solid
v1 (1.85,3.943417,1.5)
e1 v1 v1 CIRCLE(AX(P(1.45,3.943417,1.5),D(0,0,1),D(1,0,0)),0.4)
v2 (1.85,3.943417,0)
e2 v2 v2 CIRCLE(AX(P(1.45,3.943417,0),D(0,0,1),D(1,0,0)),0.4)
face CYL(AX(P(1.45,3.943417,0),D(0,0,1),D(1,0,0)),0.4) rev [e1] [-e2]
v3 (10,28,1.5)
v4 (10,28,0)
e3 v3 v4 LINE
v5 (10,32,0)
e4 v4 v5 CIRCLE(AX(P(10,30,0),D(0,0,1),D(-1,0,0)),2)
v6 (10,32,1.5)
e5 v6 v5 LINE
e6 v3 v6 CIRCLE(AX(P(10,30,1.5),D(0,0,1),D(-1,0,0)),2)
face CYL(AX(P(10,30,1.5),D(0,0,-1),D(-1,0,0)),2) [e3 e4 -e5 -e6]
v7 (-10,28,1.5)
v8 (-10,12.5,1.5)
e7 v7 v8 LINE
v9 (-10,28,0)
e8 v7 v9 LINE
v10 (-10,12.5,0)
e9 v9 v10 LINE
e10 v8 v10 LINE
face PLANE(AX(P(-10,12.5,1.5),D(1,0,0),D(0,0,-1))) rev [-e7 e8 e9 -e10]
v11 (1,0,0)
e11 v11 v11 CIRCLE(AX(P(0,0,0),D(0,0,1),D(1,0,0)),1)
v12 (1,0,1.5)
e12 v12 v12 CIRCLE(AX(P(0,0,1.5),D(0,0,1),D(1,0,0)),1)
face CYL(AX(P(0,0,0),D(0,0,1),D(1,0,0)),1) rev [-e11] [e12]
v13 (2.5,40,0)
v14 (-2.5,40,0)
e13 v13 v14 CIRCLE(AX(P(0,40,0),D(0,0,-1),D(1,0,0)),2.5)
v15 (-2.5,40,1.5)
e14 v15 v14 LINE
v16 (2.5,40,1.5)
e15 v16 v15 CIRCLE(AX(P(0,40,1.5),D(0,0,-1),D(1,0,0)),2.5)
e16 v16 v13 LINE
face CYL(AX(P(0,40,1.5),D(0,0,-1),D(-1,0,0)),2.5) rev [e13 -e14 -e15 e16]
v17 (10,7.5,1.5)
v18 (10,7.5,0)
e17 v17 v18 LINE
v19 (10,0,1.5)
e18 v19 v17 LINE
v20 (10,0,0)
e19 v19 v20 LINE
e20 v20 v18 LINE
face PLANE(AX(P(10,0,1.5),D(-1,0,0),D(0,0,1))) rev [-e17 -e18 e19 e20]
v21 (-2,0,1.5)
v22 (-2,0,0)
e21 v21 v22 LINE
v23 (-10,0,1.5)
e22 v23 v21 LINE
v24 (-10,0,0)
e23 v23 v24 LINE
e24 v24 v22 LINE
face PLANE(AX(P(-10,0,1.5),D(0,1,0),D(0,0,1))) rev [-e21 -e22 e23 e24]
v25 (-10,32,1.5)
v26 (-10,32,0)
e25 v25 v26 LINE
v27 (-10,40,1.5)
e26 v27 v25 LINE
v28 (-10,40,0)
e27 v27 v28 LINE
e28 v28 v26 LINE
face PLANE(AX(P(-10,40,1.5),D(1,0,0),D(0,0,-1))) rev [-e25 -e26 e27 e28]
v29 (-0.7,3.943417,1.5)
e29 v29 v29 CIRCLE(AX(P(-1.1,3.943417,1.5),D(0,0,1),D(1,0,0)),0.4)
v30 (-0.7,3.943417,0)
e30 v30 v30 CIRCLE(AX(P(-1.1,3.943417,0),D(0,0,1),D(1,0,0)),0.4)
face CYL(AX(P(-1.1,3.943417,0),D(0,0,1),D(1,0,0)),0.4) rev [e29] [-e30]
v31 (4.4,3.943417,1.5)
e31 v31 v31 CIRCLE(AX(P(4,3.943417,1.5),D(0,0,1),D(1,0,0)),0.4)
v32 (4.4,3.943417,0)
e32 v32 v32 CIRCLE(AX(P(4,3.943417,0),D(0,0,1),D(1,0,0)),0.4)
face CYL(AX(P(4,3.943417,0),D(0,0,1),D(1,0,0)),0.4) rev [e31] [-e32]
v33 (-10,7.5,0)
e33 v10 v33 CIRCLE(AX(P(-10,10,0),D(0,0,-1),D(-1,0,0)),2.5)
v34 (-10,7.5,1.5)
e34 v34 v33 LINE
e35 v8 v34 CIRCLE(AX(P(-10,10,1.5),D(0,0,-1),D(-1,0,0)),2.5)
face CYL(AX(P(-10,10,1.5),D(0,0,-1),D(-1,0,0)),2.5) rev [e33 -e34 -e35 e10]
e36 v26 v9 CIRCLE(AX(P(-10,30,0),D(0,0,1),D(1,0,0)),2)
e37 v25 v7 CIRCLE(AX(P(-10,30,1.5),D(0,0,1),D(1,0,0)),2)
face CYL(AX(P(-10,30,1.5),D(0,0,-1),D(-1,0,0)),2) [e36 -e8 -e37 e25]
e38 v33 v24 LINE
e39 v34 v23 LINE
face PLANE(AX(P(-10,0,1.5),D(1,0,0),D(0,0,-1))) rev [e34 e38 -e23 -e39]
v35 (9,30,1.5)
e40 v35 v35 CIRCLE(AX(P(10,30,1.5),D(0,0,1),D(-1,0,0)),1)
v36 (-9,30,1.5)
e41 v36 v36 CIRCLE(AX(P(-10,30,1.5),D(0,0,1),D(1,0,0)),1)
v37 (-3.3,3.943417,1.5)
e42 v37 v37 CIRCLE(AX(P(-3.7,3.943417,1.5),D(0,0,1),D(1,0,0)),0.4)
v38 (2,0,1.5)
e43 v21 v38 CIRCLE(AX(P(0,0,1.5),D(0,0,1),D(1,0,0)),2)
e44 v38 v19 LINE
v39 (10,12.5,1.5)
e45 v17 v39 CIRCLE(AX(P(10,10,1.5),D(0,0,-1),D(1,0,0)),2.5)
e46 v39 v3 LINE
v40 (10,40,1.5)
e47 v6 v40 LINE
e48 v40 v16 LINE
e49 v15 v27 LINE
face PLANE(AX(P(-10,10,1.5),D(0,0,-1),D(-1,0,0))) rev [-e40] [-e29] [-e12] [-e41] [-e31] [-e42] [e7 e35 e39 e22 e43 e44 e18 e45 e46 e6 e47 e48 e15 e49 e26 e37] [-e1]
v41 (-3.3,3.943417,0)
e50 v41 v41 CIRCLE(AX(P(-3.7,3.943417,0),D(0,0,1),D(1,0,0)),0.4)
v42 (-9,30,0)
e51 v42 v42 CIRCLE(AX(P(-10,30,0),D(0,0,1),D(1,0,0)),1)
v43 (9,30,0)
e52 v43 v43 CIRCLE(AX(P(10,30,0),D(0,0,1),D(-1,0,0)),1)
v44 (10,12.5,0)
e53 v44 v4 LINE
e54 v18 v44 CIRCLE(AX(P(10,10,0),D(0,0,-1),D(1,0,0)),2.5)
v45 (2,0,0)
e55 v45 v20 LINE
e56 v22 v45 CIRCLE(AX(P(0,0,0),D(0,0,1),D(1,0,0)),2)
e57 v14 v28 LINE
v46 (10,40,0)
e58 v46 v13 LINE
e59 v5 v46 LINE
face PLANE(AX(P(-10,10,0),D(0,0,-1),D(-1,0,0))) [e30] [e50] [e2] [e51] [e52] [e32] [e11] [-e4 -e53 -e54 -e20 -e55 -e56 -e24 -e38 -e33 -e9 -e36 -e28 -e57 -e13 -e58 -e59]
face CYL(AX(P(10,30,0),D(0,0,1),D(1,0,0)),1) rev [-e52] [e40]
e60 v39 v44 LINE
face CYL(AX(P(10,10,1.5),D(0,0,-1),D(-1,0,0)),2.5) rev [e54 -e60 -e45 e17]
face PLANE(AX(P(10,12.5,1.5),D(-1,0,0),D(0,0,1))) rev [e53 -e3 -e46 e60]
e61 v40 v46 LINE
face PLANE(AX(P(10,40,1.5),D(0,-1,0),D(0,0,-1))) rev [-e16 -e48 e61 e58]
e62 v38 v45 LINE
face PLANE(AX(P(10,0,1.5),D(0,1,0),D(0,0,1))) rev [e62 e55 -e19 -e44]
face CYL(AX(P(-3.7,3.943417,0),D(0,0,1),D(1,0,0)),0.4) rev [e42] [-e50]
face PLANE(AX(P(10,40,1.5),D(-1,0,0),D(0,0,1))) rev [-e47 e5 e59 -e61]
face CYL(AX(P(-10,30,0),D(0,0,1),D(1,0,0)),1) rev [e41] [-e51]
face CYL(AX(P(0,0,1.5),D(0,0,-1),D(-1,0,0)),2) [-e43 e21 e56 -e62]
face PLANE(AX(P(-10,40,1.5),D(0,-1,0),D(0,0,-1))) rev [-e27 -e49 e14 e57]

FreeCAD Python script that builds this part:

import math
import FreeCAD as App
import Part
import Sketcher

V = App.Vector

doc = App.newDocument("Part")
body = doc.addObject("PartDesign::Body", "Body")

# Sketch on XY plane
sketch1 = body.newObject("Sketcher::SketchObject", "Sketch")
sketch1.AttachmentSupport = (doc.getObject("XY_Plane"), [""])
sketch1.MapMode = "FlatFace"
sketch1.addGeometry([
    Part.LineSegment(V(-10, 0, 0), V(-2, 0, 0)),  # 0
    Part.ArcOfCircle(Part.Circle(V(0, 0, 0), V(0, 0, 1), 2), math.radians(180), math.radians(360)),  # 1
    Part.LineSegment(V(2, 0, 0), V(10, 0, 0)),  # 2
    Part.LineSegment(V(10, 0, 0), V(10, 7.5, 0)),  # 3
    Part.ArcOfCircle(Part.Circle(V(10, 10, 0), V(0, 0, 1), 2.5), math.radians(90), math.radians(270)),  # 4
    Part.LineSegment(V(10, 12.5, 0), V(10, 28, 0)),  # 5
    Part.ArcOfCircle(Part.Circle(V(10, 30, 0), V(0, 0, 1), 2), math.radians(-90), math.radians(90)),  # 6
    Part.LineSegment(V(10, 32, 0), V(10, 40, 0)),  # 7
    Part.LineSegment(V(10, 40, 0), V(2.5, 40, 0)),  # 8
    Part.ArcOfCircle(Part.Circle(V(0, 40, 0), V(0, 0, 1), 2.5), math.radians(180), math.radians(360)),  # 9
    Part.LineSegment(V(-2.5, 40, 0), V(-10, 40, 0)),  # 10
    Part.LineSegment(V(-10, 40, 0), V(-10, 32, 0)),  # 11
    Part.ArcOfCircle(Part.Circle(V(-10, 30, 0), V(0, 0, 1), 2), math.radians(90), math.radians(270)),  # 12
    Part.LineSegment(V(-10, 28, 0), V(-10, 12.5, 0)),  # 13
    Part.ArcOfCircle(Part.Circle(V(-10, 10, 0), V(0, 0, 1), 2.5), math.radians(-90), math.radians(90)),  # 14
    Part.LineSegment(V(-10, 7.5, 0), V(-10, 0, 0)),  # 15
], False)
sketch1.addConstraint([
    Sketcher.Constraint("Coincident", 0, 2, 1, 1),
    Sketcher.Constraint("Coincident", 1, 2, 2, 1),
    Sketcher.Constraint("Coincident", 2, 2, 3, 1),
    Sketcher.Constraint("Coincident", 3, 2, 4, 2),
    Sketcher.Constraint("Coincident", 4, 1, 5, 1),
    Sketcher.Constraint("Coincident", 5, 2, 6, 1),
    Sketcher.Constraint("Coincident", 6, 2, 7, 1),
    Sketcher.Constraint("Coincident", 7, 2, 8, 1),
    Sketcher.Constraint("Coincident", 8, 2, 9, 2),
    Sketcher.Constraint("Coincident", 9, 1, 10, 1),
    Sketcher.Constraint("Coincident", 10, 2, 11, 1),
    Sketcher.Constraint("Coincident", 11, 2, 12, 1),
    Sketcher.Constraint("Coincident", 12, 2, 13, 1),
    Sketcher.Constraint("Coincident", 13, 2, 14, 2),
    Sketcher.Constraint("Coincident", 14, 1, 15, 1),
    Sketcher.Constraint("Coincident", 15, 2, 0, 1),
    Sketcher.Constraint("Horizontal", 0),
    Sketcher.Constraint("Horizontal", 2),
    Sketcher.Constraint("Vertical", 3),
    Sketcher.Constraint("Vertical", 5),
    Sketcher.Constraint("Vertical", 7),
    Sketcher.Constraint("Horizontal", 8),
    Sketcher.Constraint("Horizontal", 10),
    Sketcher.Constraint("Vertical", 11),
    Sketcher.Constraint("Vertical", 13),
    Sketcher.Constraint("Vertical", 15),
    Sketcher.Constraint("Coincident", 1, 3, -1, 1),
    Sketcher.Constraint("Equal", 1, 6),
    Sketcher.Constraint("Equal", 4, 9),
    Sketcher.Constraint("Equal", 6, 12),
    Sketcher.Constraint("Equal", 9, 14),
    Sketcher.Constraint("Symmetric", 2, 2, 15, 2, -1, 1),
    Sketcher.Constraint("Symmetric", 6, 3, 12, 3, -2),
    Sketcher.Constraint("Symmetric", 4, 3, 14, 3, -2),
    Sketcher.Constraint("Symmetric", 8, 2, 9, 1, -2),
    Sketcher.Constraint("PointOnObject", 0, 2, -1),
    Sketcher.Constraint("Horizontal", 9, 3, 7, 2),
    Sketcher.Constraint("Vertical", 4, 3, 6, 3),
    Sketcher.Constraint("Vertical", 6, 3, 2, 2),
    Sketcher.Constraint("Vertical", 3, 2, 4, 1),
    Sketcher.Constraint("Vertical", 5, 2, 6, 2),
    Sketcher.Constraint("Vertical", 14, 3, 10, 2),
    Sketcher.Constraint("Vertical", 11, 2, 12, 2),
    Sketcher.Constraint("Equal", 10, 3),
    Sketcher.Constraint("Equal", 2, 7),
    Sketcher.Constraint("Radius", 1, 2.0),
    Sketcher.Constraint("Radius", 4, 2.5),
    Sketcher.Constraint("DistanceX", 0, 1, 0, 2, 8.0),
    Sketcher.Constraint("DistanceY", 5, 1, 5, 2, 15.5),
])
pad1 = body.newObject("PartDesign::Pad", "Pad")
pad1.Profile = sketch1
pad1.Length = 1.5

# Sketch on XY plane
sketch2 = body.newObject("Sketcher::SketchObject", "Sketch001")
sketch2.AttachmentSupport = (doc.getObject("XY_Plane"), [""])
sketch2.MapMode = "FlatFace"
sketch2.AttachmentOffset = App.Placement(V(0, 0, 1.5), App.Rotation())
sketch2.addGeometry([
    Part.Circle(V(-10, 30, 0), V(0, 0, 1), 1),  # 0
    Part.Circle(V(4, 3.94, 0), V(0, 0, 1), 0.4),  # 1
    Part.Circle(V(10, 30, 0), V(0, 0, 1), 1),  # 2
    Part.Circle(V(0, 0, 0), V(0, 0, 1), 1),  # 3
    Part.Circle(V(1.45, 3.94, 0), V(0, 0, 1), 0.4),  # 4
    Part.Circle(V(-1.1, 3.94, 0), V(0, 0, 1), 0.4),  # 5
    Part.Circle(V(-3.7, 3.94, 0), V(0, 0, 1), 0.4),  # 6
], False)
sketch2.addConstraint([
    Sketcher.Constraint("Coincident", 3, 3, -1, 1),
    Sketcher.Constraint("Equal", 0, 2),
    Sketcher.Constraint("Equal", 2, 3),
    Sketcher.Constraint("Equal", 1, 4),
    Sketcher.Constraint("Equal", 4, 5),
    Sketcher.Constraint("Equal", 5, 6),
    Sketcher.Constraint("Symmetric", 0, 3, 2, 3, -2),
    Sketcher.Constraint("Horizontal", 1, 3, 4, 3),
    Sketcher.Constraint("Horizontal", 4, 3, 5, 3),
    Sketcher.Constraint("Horizontal", 5, 3, 6, 3),
    Sketcher.Constraint("Diameter", 0, 2.0),
    Sketcher.Constraint("Diameter", 1, 0.8),
    Sketcher.Constraint("DistanceX", 0, 3, -1, 1, 10.0),
    Sketcher.Constraint("DistanceY", -1, 1, 0, 3, 30.0),
    Sketcher.Constraint("DistanceX", -1, 1, 1, 3, 4.0),
    Sketcher.Constraint("DistanceX", 5, 3, -1, 1, 1.1),
    Sketcher.Constraint("DistanceX", 6, 3, -1, 1, 3.7),
    Sketcher.Constraint("DistanceX", -1, 1, 4, 3, 1.45),
    Sketcher.Constraint("DistanceY", -1, 1, 1, 3, 3.943417),
])
pocket1 = body.newObject("PartDesign::Pocket", "Pocket")
pocket1.Profile = sketch2
pocket1.Type = "ThroughAll"

doc.recompute()
